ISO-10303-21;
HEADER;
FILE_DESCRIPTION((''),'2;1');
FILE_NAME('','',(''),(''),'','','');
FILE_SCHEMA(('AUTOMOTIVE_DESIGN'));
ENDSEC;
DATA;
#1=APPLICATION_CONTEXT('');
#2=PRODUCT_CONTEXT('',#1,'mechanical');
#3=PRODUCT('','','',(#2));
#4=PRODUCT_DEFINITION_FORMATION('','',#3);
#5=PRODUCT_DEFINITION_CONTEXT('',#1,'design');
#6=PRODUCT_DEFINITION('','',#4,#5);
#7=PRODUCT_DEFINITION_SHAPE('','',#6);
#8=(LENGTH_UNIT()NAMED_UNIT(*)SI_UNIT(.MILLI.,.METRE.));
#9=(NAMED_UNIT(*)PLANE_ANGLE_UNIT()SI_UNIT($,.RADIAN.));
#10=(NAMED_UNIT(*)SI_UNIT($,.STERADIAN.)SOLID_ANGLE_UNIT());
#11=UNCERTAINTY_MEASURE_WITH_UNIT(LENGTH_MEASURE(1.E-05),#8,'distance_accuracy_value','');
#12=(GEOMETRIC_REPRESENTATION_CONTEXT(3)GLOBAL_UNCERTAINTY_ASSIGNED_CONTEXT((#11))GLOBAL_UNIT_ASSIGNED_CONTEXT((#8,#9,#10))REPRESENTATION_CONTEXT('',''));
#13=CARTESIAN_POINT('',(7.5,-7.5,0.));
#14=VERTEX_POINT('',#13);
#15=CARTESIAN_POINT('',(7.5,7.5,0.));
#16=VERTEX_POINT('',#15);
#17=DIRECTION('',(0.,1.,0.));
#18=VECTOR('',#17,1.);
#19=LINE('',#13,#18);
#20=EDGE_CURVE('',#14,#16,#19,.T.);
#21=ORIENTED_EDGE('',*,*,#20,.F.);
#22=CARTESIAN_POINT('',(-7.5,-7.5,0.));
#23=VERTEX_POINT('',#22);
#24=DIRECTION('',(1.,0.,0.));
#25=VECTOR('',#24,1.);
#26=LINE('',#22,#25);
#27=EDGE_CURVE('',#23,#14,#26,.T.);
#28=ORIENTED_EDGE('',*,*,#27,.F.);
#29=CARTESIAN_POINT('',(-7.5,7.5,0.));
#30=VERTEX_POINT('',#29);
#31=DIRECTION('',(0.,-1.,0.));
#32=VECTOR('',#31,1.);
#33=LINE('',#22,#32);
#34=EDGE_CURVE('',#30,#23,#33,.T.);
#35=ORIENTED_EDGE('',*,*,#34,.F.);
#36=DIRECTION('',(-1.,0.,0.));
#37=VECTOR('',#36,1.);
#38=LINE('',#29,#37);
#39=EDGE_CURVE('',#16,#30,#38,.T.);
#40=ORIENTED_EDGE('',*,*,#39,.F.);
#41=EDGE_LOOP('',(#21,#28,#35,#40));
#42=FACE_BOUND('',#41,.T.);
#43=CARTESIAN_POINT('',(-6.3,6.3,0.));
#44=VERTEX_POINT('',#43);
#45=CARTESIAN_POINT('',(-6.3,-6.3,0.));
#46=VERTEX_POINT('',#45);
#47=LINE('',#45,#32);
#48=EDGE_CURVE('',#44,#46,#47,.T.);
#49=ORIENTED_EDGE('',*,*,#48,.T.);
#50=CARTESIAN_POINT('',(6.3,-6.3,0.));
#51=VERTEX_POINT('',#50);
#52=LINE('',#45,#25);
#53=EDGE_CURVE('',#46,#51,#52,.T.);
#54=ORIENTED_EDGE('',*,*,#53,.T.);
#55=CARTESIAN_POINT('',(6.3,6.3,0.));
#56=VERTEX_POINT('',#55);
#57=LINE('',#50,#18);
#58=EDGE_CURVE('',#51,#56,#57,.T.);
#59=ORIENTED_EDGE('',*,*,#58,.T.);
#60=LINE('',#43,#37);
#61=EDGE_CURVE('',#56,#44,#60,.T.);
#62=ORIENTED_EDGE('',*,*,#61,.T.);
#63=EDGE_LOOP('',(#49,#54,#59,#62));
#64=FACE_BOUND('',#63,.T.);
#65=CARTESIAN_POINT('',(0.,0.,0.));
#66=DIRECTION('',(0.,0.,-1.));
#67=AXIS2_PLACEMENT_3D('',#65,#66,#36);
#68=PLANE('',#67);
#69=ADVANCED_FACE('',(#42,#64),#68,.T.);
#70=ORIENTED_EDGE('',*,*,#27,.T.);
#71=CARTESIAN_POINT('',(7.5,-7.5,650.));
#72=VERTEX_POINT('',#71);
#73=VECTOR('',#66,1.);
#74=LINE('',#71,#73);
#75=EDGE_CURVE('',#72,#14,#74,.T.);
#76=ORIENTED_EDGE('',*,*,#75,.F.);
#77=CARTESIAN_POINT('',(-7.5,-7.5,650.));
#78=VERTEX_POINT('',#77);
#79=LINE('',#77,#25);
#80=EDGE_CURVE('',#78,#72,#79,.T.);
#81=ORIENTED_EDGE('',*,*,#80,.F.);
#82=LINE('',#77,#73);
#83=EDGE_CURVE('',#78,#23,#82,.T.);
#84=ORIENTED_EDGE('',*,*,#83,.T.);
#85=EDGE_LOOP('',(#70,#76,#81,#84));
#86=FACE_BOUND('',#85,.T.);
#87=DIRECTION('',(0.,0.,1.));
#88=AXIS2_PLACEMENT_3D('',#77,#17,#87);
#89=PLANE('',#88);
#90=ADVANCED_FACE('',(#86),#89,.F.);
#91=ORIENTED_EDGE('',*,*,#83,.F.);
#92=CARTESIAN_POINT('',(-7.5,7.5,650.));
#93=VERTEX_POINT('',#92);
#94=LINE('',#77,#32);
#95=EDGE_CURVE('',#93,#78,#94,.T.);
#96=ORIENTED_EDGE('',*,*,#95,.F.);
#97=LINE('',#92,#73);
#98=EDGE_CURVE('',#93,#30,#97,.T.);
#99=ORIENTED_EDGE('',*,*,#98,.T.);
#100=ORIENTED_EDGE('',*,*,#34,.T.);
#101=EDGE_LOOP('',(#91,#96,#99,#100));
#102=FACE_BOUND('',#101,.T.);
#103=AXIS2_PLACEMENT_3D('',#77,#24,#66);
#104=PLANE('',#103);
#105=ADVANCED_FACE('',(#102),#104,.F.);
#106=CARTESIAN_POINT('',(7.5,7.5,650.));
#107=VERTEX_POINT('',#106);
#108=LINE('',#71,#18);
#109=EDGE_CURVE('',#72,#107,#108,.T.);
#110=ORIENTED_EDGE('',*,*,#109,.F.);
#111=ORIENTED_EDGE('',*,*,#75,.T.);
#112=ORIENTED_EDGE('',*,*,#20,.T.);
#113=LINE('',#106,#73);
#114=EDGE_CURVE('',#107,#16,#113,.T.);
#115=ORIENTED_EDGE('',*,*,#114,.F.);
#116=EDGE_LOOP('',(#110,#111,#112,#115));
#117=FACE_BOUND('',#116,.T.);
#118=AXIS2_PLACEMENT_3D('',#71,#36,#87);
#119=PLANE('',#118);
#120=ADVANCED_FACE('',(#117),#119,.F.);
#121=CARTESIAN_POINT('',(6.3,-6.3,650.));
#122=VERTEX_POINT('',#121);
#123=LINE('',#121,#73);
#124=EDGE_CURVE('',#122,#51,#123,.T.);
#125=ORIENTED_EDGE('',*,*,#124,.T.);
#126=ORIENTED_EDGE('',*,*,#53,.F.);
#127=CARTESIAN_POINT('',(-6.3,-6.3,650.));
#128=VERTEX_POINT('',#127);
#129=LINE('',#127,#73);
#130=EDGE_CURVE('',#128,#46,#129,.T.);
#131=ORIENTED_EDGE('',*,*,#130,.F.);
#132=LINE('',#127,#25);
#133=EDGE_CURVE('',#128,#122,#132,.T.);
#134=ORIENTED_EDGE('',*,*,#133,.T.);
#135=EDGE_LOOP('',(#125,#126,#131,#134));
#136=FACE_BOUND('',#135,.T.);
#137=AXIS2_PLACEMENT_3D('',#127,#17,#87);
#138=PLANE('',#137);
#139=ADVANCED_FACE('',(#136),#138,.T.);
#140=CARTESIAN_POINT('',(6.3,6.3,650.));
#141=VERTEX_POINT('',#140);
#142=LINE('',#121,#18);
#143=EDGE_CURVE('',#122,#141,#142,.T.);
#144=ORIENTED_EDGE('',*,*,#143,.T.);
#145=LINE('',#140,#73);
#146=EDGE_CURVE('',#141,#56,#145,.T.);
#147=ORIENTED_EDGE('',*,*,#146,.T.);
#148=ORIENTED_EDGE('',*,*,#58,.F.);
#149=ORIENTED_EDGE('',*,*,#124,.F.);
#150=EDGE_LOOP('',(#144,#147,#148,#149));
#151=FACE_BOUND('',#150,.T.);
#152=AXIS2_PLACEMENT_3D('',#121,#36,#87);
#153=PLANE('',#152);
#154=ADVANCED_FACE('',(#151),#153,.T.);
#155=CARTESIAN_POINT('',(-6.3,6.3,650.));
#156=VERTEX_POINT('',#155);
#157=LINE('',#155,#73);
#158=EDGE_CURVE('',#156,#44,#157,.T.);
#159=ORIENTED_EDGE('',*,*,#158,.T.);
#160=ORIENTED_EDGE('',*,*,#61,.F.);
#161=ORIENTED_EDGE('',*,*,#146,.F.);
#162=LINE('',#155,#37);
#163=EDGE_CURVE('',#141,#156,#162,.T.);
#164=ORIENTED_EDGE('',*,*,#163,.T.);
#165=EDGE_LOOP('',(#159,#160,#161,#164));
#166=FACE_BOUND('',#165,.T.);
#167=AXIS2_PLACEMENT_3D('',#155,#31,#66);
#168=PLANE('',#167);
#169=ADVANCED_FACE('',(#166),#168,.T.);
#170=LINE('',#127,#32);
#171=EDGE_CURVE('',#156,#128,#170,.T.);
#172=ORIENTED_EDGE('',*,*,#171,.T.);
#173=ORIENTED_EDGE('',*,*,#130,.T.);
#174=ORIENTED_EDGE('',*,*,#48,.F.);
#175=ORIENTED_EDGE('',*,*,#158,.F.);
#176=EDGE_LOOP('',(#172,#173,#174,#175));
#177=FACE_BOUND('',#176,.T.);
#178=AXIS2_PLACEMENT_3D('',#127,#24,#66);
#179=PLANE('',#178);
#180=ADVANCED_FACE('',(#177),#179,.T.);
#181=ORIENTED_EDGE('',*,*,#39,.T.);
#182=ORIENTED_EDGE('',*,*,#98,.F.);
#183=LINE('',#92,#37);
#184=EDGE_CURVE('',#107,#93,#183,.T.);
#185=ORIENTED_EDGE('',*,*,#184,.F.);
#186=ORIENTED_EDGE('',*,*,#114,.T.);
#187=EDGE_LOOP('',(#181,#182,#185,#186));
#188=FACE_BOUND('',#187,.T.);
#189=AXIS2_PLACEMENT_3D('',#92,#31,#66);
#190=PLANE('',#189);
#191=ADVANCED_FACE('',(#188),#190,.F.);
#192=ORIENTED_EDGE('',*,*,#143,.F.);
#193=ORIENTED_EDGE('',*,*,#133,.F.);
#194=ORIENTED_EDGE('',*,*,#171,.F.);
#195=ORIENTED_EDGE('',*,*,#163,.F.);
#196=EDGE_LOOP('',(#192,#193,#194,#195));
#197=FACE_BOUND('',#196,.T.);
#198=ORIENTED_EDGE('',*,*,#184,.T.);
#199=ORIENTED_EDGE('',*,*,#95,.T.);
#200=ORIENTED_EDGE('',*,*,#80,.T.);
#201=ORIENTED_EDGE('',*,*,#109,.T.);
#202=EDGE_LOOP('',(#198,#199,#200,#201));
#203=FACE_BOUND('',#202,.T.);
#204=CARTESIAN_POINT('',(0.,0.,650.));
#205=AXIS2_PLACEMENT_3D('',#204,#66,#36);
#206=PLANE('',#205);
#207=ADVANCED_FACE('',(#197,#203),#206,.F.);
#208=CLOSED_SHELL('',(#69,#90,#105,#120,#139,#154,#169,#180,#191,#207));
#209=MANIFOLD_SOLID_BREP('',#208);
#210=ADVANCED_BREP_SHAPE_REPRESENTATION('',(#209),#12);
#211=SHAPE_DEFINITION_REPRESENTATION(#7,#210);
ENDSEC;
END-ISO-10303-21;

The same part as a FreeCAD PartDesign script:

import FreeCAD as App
import Part
import Sketcher
Q = App.Units.Quantity


def add_polygon(sketch, points):
    """Adds a closed chain of lines whose ends are joined by coincident constraints."""
    first, n = sketch.GeometryCount, len(points)
    for a, b in zip(points, points[1:] + points[:1]):
        sketch.addGeometry(Part.LineSegment(App.Vector(*a, 0), App.Vector(*b, 0)), False)
    for i in range(n):
        sketch.addConstraint(Sketcher.Constraint("Coincident", first + i, 2, first + (i + 1) % n, 1))

doc = App.newDocument("Part")
body = doc.addObject("PartDesign::Body", "Body")

# Sketch on XY plane
sketch1 = body.newObject("Sketcher::SketchObject", "Sketch")
sketch1.AttachmentSupport = (doc.getObject("XY_Plane"), [""])
sketch1.MapMode = "FlatFace"
add_polygon(sketch1, [(-8, 8), (-8, -8), (8, -8), (8, 8)])  # lines 0-3
add_polygon(sketch1, [(6, -6), (-6, -6), (-6, 6), (6, 6)])  # lines 4-7
sketch1.addConstraint(Sketcher.Constraint("Vertical", 0))
sketch1.addConstraint(Sketcher.Constraint("Horizontal", 1))
sketch1.addConstraint(Sketcher.Constraint("Vertical", 2))
sketch1.addConstraint(Sketcher.Constraint("Horizontal", 3))
sketch1.addConstraint(Sketcher.Constraint("Horizontal", 4))
sketch1.addConstraint(Sketcher.Constraint("Vertical", 5))
sketch1.addConstraint(Sketcher.Constraint("Horizontal", 6))
sketch1.addConstraint(Sketcher.Constraint("Vertical", 7))
sketch1.addConstraint(Sketcher.Constraint("Symmetric", 0, 2, 2, 2, -1, 1))
sketch1.addConstraint(Sketcher.Constraint("Symmetric", 4, 2, 6, 2, -1, 1))
sketch1.addConstraint(Sketcher.Constraint("Equal", 3, 0))
sketch1.addConstraint(Sketcher.Constraint("Equal", 6, 5))
sketch1.addConstraint(Sketcher.Constraint("DistanceX", 1, 1, 1, 2, Q("15 mm")))
sketch1.addConstraint(Sketcher.Constraint("DistanceX", 4, 2, 4, 1, Q("12.6 mm")))
pad1 = body.newObject("PartDesign::Pad", "Pad")
pad1.Profile = sketch1
pad1.Length = 650

doc.recompute()
